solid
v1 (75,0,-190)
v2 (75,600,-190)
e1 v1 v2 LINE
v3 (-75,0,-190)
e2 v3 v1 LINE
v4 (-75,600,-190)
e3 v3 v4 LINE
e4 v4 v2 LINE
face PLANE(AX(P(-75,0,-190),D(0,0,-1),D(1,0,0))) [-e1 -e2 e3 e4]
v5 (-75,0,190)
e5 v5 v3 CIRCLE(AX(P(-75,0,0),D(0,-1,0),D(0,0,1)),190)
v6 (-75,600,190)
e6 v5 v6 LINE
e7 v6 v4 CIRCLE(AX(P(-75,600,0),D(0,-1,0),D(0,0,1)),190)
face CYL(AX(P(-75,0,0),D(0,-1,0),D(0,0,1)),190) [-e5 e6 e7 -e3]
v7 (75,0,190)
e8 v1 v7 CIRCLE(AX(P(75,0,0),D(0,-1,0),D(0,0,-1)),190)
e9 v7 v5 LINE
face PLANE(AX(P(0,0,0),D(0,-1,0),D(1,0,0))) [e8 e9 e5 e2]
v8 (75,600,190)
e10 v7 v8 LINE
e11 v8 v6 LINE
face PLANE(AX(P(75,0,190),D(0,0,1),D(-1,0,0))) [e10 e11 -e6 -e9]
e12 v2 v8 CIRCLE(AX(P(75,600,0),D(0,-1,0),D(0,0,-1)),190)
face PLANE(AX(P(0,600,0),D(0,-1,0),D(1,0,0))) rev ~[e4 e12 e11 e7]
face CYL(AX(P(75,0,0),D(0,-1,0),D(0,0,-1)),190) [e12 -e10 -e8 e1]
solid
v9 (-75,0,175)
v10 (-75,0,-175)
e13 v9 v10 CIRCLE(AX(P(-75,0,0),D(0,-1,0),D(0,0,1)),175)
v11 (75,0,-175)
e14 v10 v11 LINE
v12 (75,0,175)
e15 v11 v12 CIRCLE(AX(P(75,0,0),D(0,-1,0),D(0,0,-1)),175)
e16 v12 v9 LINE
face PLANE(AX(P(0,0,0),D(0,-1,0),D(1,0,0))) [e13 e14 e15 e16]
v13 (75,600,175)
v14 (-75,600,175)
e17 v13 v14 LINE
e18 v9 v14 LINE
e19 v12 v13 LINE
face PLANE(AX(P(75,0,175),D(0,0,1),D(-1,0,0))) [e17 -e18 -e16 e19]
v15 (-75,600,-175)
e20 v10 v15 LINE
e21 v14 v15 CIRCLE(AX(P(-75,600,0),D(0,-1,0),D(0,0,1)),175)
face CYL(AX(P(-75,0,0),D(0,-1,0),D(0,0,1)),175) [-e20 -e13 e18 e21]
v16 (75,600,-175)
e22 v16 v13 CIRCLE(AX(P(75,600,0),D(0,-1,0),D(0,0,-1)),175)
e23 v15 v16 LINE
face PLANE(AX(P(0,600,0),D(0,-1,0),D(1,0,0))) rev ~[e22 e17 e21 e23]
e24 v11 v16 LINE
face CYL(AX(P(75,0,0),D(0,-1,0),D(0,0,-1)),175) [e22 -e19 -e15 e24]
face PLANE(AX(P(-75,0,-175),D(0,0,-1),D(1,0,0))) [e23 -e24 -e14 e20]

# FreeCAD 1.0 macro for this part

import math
import FreeCAD as App
import Part
import Sketcher

V = App.Vector

doc = App.newDocument("Part")
body = doc.addObject("PartDesign::Body", "Body")

sketch1 = body.newObject("Sketcher::SketchObject", "Sketch")
sketch1.AttachmentSupport = (doc.getObject("XZ_Plane"), [""])
sketch1.MapMode = "FlatFace"
sketch1.addGeometry(Part.LineSegment(V(75, 190, 0), V(-75, 190, 0)), False)
sketch1.addGeometry(Part.ArcOfCircle(Part.Circle(V(-75, 0, 0), V(0, 0, 1), 190), math.radians(90), math.radians(270)), False)
sketch1.addGeometry(Part.LineSegment(V(-75, -190, 0), V(75, -190, 0)), False)
sketch1.addGeometry(Part.ArcOfCircle(Part.Circle(V(75, 0, 0), V(0, 0, 1), 190), math.radians(-90), math.radians(90)), False)
sketch1.addConstraint(Sketcher.Constraint("Tangent", 0, 2, 1, 1))
sketch1.addConstraint(Sketcher.Constraint("Tangent", 1, 2, 2, 1))
sketch1.addConstraint(Sketcher.Constraint("Tangent", 2, 2, 3, 1))
sketch1.addConstraint(Sketcher.Constraint("Tangent", 3, 2, 0, 1))
sketch1.addConstraint(Sketcher.Constraint("Horizontal", 0))
sketch1.addConstraint(Sketcher.Constraint("Horizontal", 2))
sketch1.addConstraint(Sketcher.Constraint("Symmetric", 1, 3, 3, 3, -1, 1))
sketch1.addConstraint(Sketcher.Constraint("Radius", 1, 190.0))
sketch1.addConstraint(Sketcher.Constraint("DistanceX", 0, 2, 0, 1, 150.0))
pad1 = body.newObject("PartDesign::Pad", "Pad")
pad1.Profile = sketch1
pad1.Length = 600
pad1.Reversed = True
body2 = doc.addObject("PartDesign::Body", "Body001")

sketch2 = body2.newObject("Sketcher::SketchObject", "Sketch001")
sketch2.AttachmentSupport = (doc.getObject("XZ_Plane001"), [""])
sketch2.MapMode = "FlatFace"
sketch2.addGeometry(Part.ArcOfCircle(Part.Circle(V(-75, 0, 0), V(0, 0, 1), 175), math.radians(90), math.radians(270)), False)
sketch2.addGeometry(Part.LineSegment(V(-75, -175, 0), V(75, -175, 0)), False)
sketch2.addGeometry(Part.ArcOfCircle(Part.Circle(V(75, 0, 0), V(0, 0, 1), 175), math.radians(-90), math.radians(90)), False)
sketch2.addGeometry(Part.LineSegment(V(75, 175, 0), V(-75, 175, 0)), False)
sketch2.addConstraint(Sketcher.Constraint("Tangent", 0, 2, 1, 1))
sketch2.addConstraint(Sketcher.Constraint("Tangent", 1, 2, 2, 1))
sketch2.addConstraint(Sketcher.Constraint("Tangent", 2, 2, 3, 1))
sketch2.addConstraint(Sketcher.Constraint("Tangent", 3, 2, 0, 1))
sketch2.addConstraint(Sketcher.Constraint("Horizontal", 1))
sketch2.addConstraint(Sketcher.Constraint("Horizontal", 3))
sketch2.addConstraint(Sketcher.Constraint("Symmetric", 0, 3, 2, 3, -1, 1))
sketch2.addConstraint(Sketcher.Constraint("Radius", 0, 175.0))
sketch2.addConstraint(Sketcher.Constraint("DistanceX", 1, 1, 1, 2, 150.0))
pad2 = body2.newObject("PartDesign::Pad", "Pad001")
pad2.Profile = sketch2
pad2.Length = 600
pad2.Reversed = True

doc.recompute()
